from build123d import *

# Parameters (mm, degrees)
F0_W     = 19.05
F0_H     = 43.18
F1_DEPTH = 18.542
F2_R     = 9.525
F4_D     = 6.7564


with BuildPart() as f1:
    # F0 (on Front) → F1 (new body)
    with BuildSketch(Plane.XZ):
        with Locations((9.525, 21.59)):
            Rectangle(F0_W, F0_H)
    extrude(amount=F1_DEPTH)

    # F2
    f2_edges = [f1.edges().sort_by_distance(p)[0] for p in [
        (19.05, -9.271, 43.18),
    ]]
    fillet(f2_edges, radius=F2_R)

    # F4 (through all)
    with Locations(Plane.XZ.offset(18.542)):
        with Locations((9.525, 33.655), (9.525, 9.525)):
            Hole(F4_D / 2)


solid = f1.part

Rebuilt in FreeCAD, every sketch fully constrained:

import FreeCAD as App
import Part
import Sketcher

V = App.Vector
Q = App.Units.Quantity


def edges_at(feature, points):
    """Names of the edges that pass closest to the given points."""
    edges = feature.Shape.Edges
    near = lambda p: min(range(len(edges)), key=lambda i: edges[i].distToShape(Part.Vertex(*p))[0])
    return sorted({f"Edge{near(p) + 1}" for p in points})

doc = App.newDocument("Part")
params = doc.addObject("Spreadsheet::Sheet", "Params")
for row, (alias, value) in enumerate([
    ("sketch1_height", "1.7 in"),
    ("sketch1_width", "0.75 in"),
    ("pad1_length", "0.73 in"),
    ("fillet_radius", "0.375 in"),
    ("sketch2_diameter", "0.266 in"),
    ("hole_diameter", "0.266 in"),
], start=1):
    params.set(f"A{row}", alias)
    params.set(f"B{row}", "=" + value)
    params.setAlias(f"B{row}", alias)

body = doc.addObject("PartDesign::Body", "Body")

# Sketch on XZ plane
sketch1 = body.newObject("Sketcher::SketchObject", "Sketch")
sketch1.AttachmentSupport = (doc.getObject("XZ_Plane"), [""])
sketch1.MapMode = "FlatFace"
sketch1.addGeometry([
    Part.LineSegment(V(0, 43, 0), V(0, 0, 0)),
    Part.LineSegment(V(0, 0, 0), V(19, 0, 0)),
    Part.LineSegment(V(19, 0, 0), V(19, 43, 0)),
    Part.LineSegment(V(19, 43, 0), V(0, 43, 0)),
], False)
sketch1.addConstraint([
    Sketcher.Constraint("Coincident", 0, 2, 1, 1),
    Sketcher.Constraint("Coincident", 1, 2, 2, 1),
    Sketcher.Constraint("Coincident", 2, 2, 3, 1),
    Sketcher.Constraint("Coincident", 3, 2, 0, 1),
    Sketcher.Constraint("Vertical", 0),
    Sketcher.Constraint("Horizontal", 1),
    Sketcher.Constraint("Vertical", 2),
    Sketcher.Constraint("Horizontal", 3),
    Sketcher.Constraint("Coincident", 0, 2, -1, 1),
    Sketcher.Constraint("DistanceY", 0, 2, 0, 1, Q("1.7 in")),
    Sketcher.Constraint("DistanceX", 1, 1, 1, 2, Q("0.75 in")),
])
sketch1.setExpression("Constraints[9]", "Params.sketch1_height")
sketch1.setExpression("Constraints[10]", "Params.sketch1_width")
pad1 = body.newObject("PartDesign::Pad", "Pad")
pad1.Profile = sketch1
pad1.setExpression("Length", "Params.pad1_length")
doc.recompute()

fillet = body.newObject("PartDesign::Fillet", "Fillet")
fillet.Base = (pad1, edges_at(pad1, [(19.05, -9.271, 43.18)]))
fillet.setExpression("Radius", "Params.fillet_radius")

# Sketch on XZ plane
sketch2 = body.newObject("Sketcher::SketchObject", "Sketch001")
sketch2.AttachmentSupport = (doc.getObject("XZ_Plane"), [""])
sketch2.MapMode = "FlatFace"
sketch2.AttachmentOffset = App.Placement(V(0, 0, 0.73 * 25.4), App.Rotation())
sketch2.addGeometry([
    Part.Circle(V(9.5, 33.7, 0), V(0, 0, 1), 3.4),
    Part.Circle(V(9.5, 9.5, 0), V(0, 0, 1), 3.4),
], False)
sketch2.addConstraint([
    Sketcher.Constraint("Equal", 0, 1),
    Sketcher.Constraint("Vertical", 0, 3, 1, 3),
    Sketcher.Constraint("Diameter", 0, Q("0.266 in")),
    Sketcher.Constraint("DistanceY", 1, 3, 0, 3, Q("0.95 in")),
    Sketcher.Constraint("DistanceX", -1, 1, 0, 3, Q("0.375 in")),
    Sketcher.Constraint("DistanceY", -1, 1, 0, 3, Q("1.325 in")),
])
sketch2.setExpression("Constraints[2]", "Params.sketch2_diameter")
doc.recompute()
hole = body.newObject("PartDesign::Hole", "Hole")
hole.Profile = sketch2
hole.ThreadType = "None"
hole.setExpression("Diameter", "Params.hole_diameter")
hole.DepthType = "ThroughAll"

doc.recompute()
